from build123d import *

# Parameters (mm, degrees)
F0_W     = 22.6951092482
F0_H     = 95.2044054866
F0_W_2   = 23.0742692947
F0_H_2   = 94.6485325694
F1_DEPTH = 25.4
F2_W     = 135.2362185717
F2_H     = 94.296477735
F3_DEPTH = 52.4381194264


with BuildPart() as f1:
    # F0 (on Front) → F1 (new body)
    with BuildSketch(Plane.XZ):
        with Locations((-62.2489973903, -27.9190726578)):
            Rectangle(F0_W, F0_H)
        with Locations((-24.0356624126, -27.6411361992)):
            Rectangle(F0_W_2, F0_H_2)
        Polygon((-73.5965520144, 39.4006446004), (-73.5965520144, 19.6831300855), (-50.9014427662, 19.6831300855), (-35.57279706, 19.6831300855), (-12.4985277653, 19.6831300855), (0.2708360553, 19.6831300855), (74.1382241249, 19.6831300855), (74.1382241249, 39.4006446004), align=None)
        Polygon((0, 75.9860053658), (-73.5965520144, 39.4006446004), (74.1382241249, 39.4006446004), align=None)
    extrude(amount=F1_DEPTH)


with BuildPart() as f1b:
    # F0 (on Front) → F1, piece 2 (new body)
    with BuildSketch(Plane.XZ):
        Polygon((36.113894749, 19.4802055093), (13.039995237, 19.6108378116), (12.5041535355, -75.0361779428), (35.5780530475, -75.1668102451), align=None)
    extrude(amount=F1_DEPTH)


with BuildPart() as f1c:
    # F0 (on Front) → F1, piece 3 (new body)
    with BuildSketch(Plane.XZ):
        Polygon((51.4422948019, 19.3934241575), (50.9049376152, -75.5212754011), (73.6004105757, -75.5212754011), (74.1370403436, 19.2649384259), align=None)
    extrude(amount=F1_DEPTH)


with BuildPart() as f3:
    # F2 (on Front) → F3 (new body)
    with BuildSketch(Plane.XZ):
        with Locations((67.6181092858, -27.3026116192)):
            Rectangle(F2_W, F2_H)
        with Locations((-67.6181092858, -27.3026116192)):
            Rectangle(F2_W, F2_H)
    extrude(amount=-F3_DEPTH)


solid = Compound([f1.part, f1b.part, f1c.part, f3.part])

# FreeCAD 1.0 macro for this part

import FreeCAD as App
import Part
import Sketcher
from FreeCAD import Vector

doc = App.newDocument("Part")
params = doc.addObject("Spreadsheet::Sheet", "Params")
for row, (alias, value) in enumerate([
    ("pad1_length", "1 in"),
    ("pad2_length", "1 in"),
    ("pad3_length", "1 in"),
    ("pad4_length", "52.438119 mm"),
], start=1):
    params.set(f"A{row}", alias)
    params.set(f"B{row}", "=" + value)
    params.setAlias(f"B{row}", alias)

body = doc.addObject("PartDesign::Body", "Body")

# Sketch on XZ plane
sketch1 = body.newObject("Sketcher::SketchObject", "Sketch")
sketch1.AttachmentSupport = (doc.getObject("XZ_Plane"), [""])
sketch1.MapMode = "FlatFace"
sketch1.addGeometry(Part.LineSegment(Vector(-74, -76, 0), Vector(-51, -76, 0)), False)
sketch1.addGeometry(Part.LineSegment(Vector(-51, -76, 0), Vector(-51, 20, 0)), False)
sketch1.addGeometry(Part.LineSegment(Vector(-51, 20, 0), Vector(-36, 20, 0)), False)
sketch1.addGeometry(Part.LineSegment(Vector(-36, 20, 0), Vector(-36, -75, 0)), False)
sketch1.addGeometry(Part.LineSegment(Vector(-36, -75, 0), Vector(-12, -75, 0)), False)
sketch1.addGeometry(Part.LineSegment(Vector(-12, -75, 0), Vector(-12, 20, 0)), False)
sketch1.addGeometry(Part.LineSegment(Vector(-12, 20, 0), Vector(74, 20, 0)), False)
sketch1.addGeometry(Part.LineSegment(Vector(74, 20, 0), Vector(74, 39, 0)), False)
sketch1.addGeometry(Part.LineSegment(Vector(74, 39, 0), Vector(0, 76, 0)), False)
sketch1.addGeometry(Part.LineSegment(Vector(0, 76, 0), Vector(-74, 39, 0)), False)
sketch1.addGeometry(Part.LineSegment(Vector(-74, 39, 0), Vector(-74, -76, 0)), False)
sketch1.addConstraint(Sketcher.Constraint("Coincident", 0, 2, 1, 1))
sketch1.addConstraint(Sketcher.Constraint("Coincident", 1, 2, 2, 1))
sketch1.addConstraint(Sketcher.Constraint("Coincident", 2, 2, 3, 1))
sketch1.addConstraint(Sketcher.Constraint("Coincident", 3, 2, 4, 1))
sketch1.addConstraint(Sketcher.Constraint("Coincident", 4, 2, 5, 1))
sketch1.addConstraint(Sketcher.Constraint("Coincident", 5, 2, 6, 1))
sketch1.addConstraint(Sketcher.Constraint("Coincident", 6, 2, 7, 1))
sketch1.addConstraint(Sketcher.Constraint("Coincident", 7, 2, 8, 1))
sketch1.addConstraint(Sketcher.Constraint("Coincident", 8, 2, 9, 1))
sketch1.addConstraint(Sketcher.Constraint("Coincident", 9, 2, 10, 1))
sketch1.addConstraint(Sketcher.Constraint("Coincident", 10, 2, 0, 1))
sketch1.addConstraint(Sketcher.Constraint("Horizontal", 0))
sketch1.addConstraint(Sketcher.Constraint("Vertical", 1))
sketch1.addConstraint(Sketcher.Constraint("Horizontal", 2))
sketch1.addConstraint(Sketcher.Constraint("Vertical", 3))
sketch1.addConstraint(Sketcher.Constraint("Horizontal", 4))
sketch1.addConstraint(Sketcher.Constraint("Vertical", 5))
sketch1.addConstraint(Sketcher.Constraint("Horizontal", 6))
sketch1.addConstraint(Sketcher.Constraint("Vertical", 7))
sketch1.addConstraint(Sketcher.Constraint("Vertical", 10))
sketch1.addConstraint(Sketcher.Constraint("PointOnObject", 8, 2, -2))
sketch1.addConstraint(Sketcher.Constraint("Horizontal", 2, 2, 5, 2))
sketch1.addConstraint(Sketcher.Constraint("Horizontal", 7, 2, 9, 2))
sketch1.addConstraint(Sketcher.Constraint("DistanceX", 0, 1, 0, 2, 22.695109))
sketch1.addConstraint(Sketcher.Constraint("DistanceX", 4, 1, 4, 2, 23.074269))
sketch1.addConstraint(Sketcher.Constraint("DistanceX", 6, 1, 6, 2, 86.636752))
sketch1.addConstraint(Sketcher.Constraint("DistanceY", 10, 2, 10, 1, 114.92192))
sketch1.addConstraint(Sketcher.Constraint("Distance", 9, 82.188449))
sketch1.addConstraint(Sketcher.Constraint("DistanceX", 2, 1, 2, 2, 15.328646))
sketch1.addConstraint(Sketcher.Constraint("DistanceY", 1, 1, 1, 2, 95.204405))
sketch1.addConstraint(Sketcher.Constraint("DistanceY", 3, 2, 3, 1, 94.648533))
sketch1.addConstraint(Sketcher.Constraint("DistanceY", -1, 1, 1, 2, 19.68313))
sketch1.addConstraint(Sketcher.Constraint("DistanceY", 7, 2, 8, 2, 36.585361))
pad1 = body.newObject("PartDesign::Pad", "Pad")
pad1.Profile = sketch1
pad1.setExpression("Length", "Params.pad1_length")
body2 = doc.addObject("PartDesign::Body", "Body001")

# Sketch on XZ plane
sketch2 = body2.newObject("Sketcher::SketchObject", "Sketch001")
sketch2.AttachmentSupport = (doc.getObject("XZ_Plane001"), [""])
sketch2.MapMode = "FlatFace"
sketch2.addGeometry(Part.LineSegment(Vector(36, 19, 0), Vector(13, 20, 0)), False)
sketch2.addGeometry(Part.LineSegment(Vector(13, 20, 0), Vector(13, -75, 0)), False)
sketch2.addGeometry(Part.LineSegment(Vector(13, -75, 0), Vector(36, -75, 0)), False)
sketch2.addGeometry(Part.LineSegment(Vector(36, -75, 0), Vector(36, 19, 0)), False)
sketch2.addConstraint(Sketcher.Constraint("Coincident", 0, 2, 1, 1))
sketch2.addConstraint(Sketcher.Constraint("Coincident", 1, 2, 2, 1))
sketch2.addConstraint(Sketcher.Constraint("Coincident", 2, 2, 3, 1))
sketch2.addConstraint(Sketcher.Constraint("Coincident", 3, 2, 0, 1))
sketch2.addConstraint(Sketcher.Constraint("Perpendicular", 0, 1))
sketch2.addConstraint(Sketcher.Constraint("Perpendicular", 1, 2))
sketch2.addConstraint(Sketcher.Constraint("Perpendicular", 2, 3))
sketch2.addConstraint(Sketcher.Constraint("DistanceX", 1, 2, 2, 2, 23.0739))
sketch2.addConstraint(Sketcher.Constraint("DistanceY", 2, 2, -1, 1, 75.16681))
sketch2.addConstraint(Sketcher.Constraint("DistanceX", 1, 2, 0, 2, 0.535842))
sketch2.addConstraint(Sketcher.Constraint("DistanceY", 2, 2, 0, 2, 94.777648))
sketch2.addConstraint(Sketcher.Constraint("DistanceX", -1, 1, 0, 2, 13.039995))
pad2 = body2.newObject("PartDesign::Pad", "Pad001")
pad2.Profile = sketch2
pad2.setExpression("Length", "Params.pad2_length")
body3 = doc.addObject("PartDesign::Body", "Body002")

# Sketch on XZ plane
sketch3 = body3.newObject("Sketcher::SketchObject", "Sketch002")
sketch3.AttachmentSupport = (doc.getObject("XZ_Plane002"), [""])
sketch3.MapMode = "FlatFace"
sketch3.addGeometry(Part.LineSegment(Vector(51.442295, 19.393424, 0), Vector(50.904938, -75.521275, 0)), False)
sketch3.addGeometry(Part.LineSegment(Vector(50.904938, -75.521275, 0), Vector(73.600411, -75.521275, 0)), False)
sketch3.addGeometry(Part.LineSegment(Vector(73.600411, -75.521275, 0), Vector(74.13704, 19.264938, 0)), False)
sketch3.addGeometry(Part.LineSegment(Vector(74.13704, 19.264938, 0), Vector(51.442295, 19.393424, 0)), False)
sketch3.addConstraint(Sketcher.Constraint("Coincident", 0, 2, 1, 1))
sketch3.addConstraint(Sketcher.Constraint("Coincident", 1, 2, 2, 1))
sketch3.addConstraint(Sketcher.Constraint("Coincident", 2, 2, 3, 1))
sketch3.addConstraint(Sketcher.Constraint("Coincident", 3, 2, 0, 1))
sketch3.addConstraint(Sketcher.Constraint("Horizontal", 1))
sketch3.addConstraint(Sketcher.Constraint("Parallel", 0, 2))
sketch3.addConstraint(Sketcher.Constraint("Perpendicular", 2, 3))
sketch3.addConstraint(Sketcher.Constraint("DistanceY", 0, 2, 3, 2, 94.9147))
sketch3.addConstraint(Sketcher.Constraint("Distance", 0, 94.916221))
sketch3.addConstraint(Sketcher.Constraint("Distance", 3, 22.695109))
sketch3.addConstraint(Sketcher.Constraint("DistanceX", -1, 1, 1, 2, 73.600411))
sketch3.addConstraint(Sketcher.Constraint("DistanceY", -1, 1, 2, 2, 19.264938))
pad3 = body3.newObject("PartDesign::Pad", "Pad002")
pad3.Profile = sketch3
pad3.setExpression("Length", "Params.pad3_length")
body4 = doc.addObject("PartDesign::Body", "Body003")

# Sketch on XZ plane
sketch4 = body4.newObject("Sketcher::SketchObject", "Sketch003")
sketch4.AttachmentSupport = (doc.getObject("XZ_Plane003"), [""])
sketch4.MapMode = "FlatFace"
sketch4.addGeometry(Part.LineSegment(Vector(135, -74, 0), Vector(135, 20, 0)), False)
sketch4.addGeometry(Part.LineSegment(Vector(135, 20, 0), Vector(-135, 20, 0)), False)
sketch4.addGeometry(Part.LineSegment(Vector(-135, 20, 0), Vector(-135, -74, 0)), False)
sketch4.addGeometry(Part.LineSegment(Vector(-135, -74, 0), Vector(135, -74, 0)), False)
sketch4.addConstraint(Sketcher.Constraint("Coincident", 0, 2, 1, 1))
sketch4.addConstraint(Sketcher.Constraint("Coincident", 1, 2, 2, 1))
sketch4.addConstraint(Sketcher.Constraint("Coincident", 2, 2, 3, 1))
sketch4.addConstraint(Sketcher.Constraint("Coincident", 3, 2, 0, 1))
sketch4.addConstraint(Sketcher.Constraint("Vertical", 0))
sketch4.addConstraint(Sketcher.Constraint("Horizontal", 1))
sketch4.addConstraint(Sketcher.Constraint("Vertical", 2))
sketch4.addConstraint(Sketcher.Constraint("Horizontal", 3))
sketch4.addConstraint(Sketcher.Constraint("DistanceX", 1, 2, 1, 1, 270.472437))
sketch4.addConstraint(Sketcher.Constraint("DistanceY", 0, 1, 0, 2, 94.296478))
sketch4.addConstraint(Sketcher.Constraint("DistanceX", -1, 1, 0, 2, 135.236219))
sketch4.addConstraint(Sketcher.Constraint("DistanceY", 2, 2, -1, 1, 74.45085))
pad4 = body4.newObject("PartDesign::Pad", "Pad003")
pad4.Profile = sketch4
pad4.setExpression("Length", "Params.pad4_length")
pad4.Reversed = True

doc.recompute()
